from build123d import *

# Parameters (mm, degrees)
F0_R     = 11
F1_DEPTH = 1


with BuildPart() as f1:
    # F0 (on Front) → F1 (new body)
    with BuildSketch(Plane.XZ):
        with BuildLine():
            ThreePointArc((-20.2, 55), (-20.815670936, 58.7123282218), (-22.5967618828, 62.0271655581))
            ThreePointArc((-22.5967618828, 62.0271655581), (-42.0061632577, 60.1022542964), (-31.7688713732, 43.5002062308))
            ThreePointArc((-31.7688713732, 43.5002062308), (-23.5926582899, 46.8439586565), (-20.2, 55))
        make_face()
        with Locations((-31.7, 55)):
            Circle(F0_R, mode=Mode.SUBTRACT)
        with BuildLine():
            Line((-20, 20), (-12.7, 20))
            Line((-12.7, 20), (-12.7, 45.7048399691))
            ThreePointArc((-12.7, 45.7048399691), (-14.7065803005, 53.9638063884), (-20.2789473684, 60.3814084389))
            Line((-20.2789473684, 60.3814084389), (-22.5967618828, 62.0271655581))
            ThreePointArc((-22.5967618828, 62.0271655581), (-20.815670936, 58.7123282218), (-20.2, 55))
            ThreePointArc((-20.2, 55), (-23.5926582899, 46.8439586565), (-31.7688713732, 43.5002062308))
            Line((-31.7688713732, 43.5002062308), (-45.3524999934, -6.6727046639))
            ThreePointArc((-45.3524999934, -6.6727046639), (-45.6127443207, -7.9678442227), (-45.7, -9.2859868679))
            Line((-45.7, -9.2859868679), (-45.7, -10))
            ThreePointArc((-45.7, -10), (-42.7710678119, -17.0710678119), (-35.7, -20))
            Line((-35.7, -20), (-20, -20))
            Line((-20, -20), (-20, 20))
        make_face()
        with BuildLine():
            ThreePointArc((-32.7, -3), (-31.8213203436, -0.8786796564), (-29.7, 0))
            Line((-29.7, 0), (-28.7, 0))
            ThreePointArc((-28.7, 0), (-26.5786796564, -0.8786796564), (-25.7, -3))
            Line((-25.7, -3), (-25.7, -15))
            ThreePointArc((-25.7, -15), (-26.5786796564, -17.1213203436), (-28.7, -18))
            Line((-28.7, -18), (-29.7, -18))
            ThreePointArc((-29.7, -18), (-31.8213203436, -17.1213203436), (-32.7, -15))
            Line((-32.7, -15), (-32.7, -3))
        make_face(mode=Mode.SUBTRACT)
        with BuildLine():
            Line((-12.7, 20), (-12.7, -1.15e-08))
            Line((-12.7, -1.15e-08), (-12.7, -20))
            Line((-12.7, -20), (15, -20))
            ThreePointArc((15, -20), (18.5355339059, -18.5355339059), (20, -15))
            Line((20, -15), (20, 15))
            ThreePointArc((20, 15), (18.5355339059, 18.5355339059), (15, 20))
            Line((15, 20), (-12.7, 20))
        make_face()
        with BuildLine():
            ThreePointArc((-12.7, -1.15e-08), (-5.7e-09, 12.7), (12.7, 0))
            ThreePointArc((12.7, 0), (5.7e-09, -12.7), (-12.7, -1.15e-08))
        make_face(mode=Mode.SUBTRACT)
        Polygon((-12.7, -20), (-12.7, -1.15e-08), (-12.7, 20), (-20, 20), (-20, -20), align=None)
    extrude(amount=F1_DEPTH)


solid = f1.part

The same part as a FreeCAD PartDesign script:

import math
import FreeCAD as App
import Part
import Sketcher

doc = App.newDocument("Part")
params = doc.addObject("Spreadsheet::Sheet", "Params")
for row, (alias, value) in enumerate([
    ("sketch1_diameter", "22 mm"),
    ("sketch1_radius", "10 mm"),
    ("sketch1_radius2", "5 mm"),
    ("sketch1_radius3", "18 mm"),
    ("sketch1_radius4", "3 mm"),
    ("pad1_length", "1 mm"),
], start=1):
    params.set(f"A{row}", alias)
    params.set(f"B{row}", "=" + value)
    params.setAlias(f"B{row}", alias)

body = doc.addObject("PartDesign::Body", "Body")

# Sketch on XZ plane
sketch1 = body.newObject("Sketcher::SketchObject", "Sketch")
sketch1.AttachmentSupport = (doc.getObject("XZ_Plane"), [""])
sketch1.MapMode = "FlatFace"
sketch1.addGeometry(Part.ArcOfCircle(Part.Circle(App.Vector(-31.7, 55, 0), App.Vector(0, 0, 1), 11.5), math.radians(38), math.radians(270)), False)
sketch1.addGeometry(Part.LineSegment(App.Vector(-31.8, 43.5, 0), App.Vector(-45.4, -6.7, 0)), False)
sketch1.addGeometry(Part.ArcOfCircle(Part.Circle(App.Vector(-35.7, -9.3, 0), App.Vector(0, 0, 1), 10), math.radians(164.85), math.radians(180)), False)
sketch1.addGeometry(Part.LineSegment(App.Vector(-45.7, -9.3, 0), App.Vector(-45.7, -10, 0)), False)
sketch1.addGeometry(Part.ArcOfCircle(Part.Circle(App.Vector(-35.7, -10, 0), App.Vector(0, 0, 1), 10), math.radians(180), math.radians(270)), False)
sketch1.addGeometry(Part.LineSegment(App.Vector(-35.7, -20, 0), App.Vector(15, -20, 0)), False)
sketch1.addGeometry(Part.ArcOfCircle(Part.Circle(App.Vector(15, -15, 0), App.Vector(0, 0, 1), 5), math.radians(-90), math.radians(0)), False)
sketch1.addGeometry(Part.LineSegment(App.Vector(20, -15, 0), App.Vector(20, 15, 0)), False)
sketch1.addGeometry(Part.ArcOfCircle(Part.Circle(App.Vector(15, 15, 0), App.Vector(0, 0, 1), 5), math.radians(0), math.radians(90)), False)
sketch1.addGeometry(Part.LineSegment(App.Vector(15, 20, 0), App.Vector(-12.7, 20, 0)), False)
sketch1.addGeometry(Part.LineSegment(App.Vector(-12.7, 20, 0), App.Vector(-12.7, 45.7, 0)), False)
sketch1.addGeometry(Part.ArcOfCircle(Part.Circle(App.Vector(-30.7, 45.7, 0), App.Vector(0, 0, 1), 18), math.radians(0), math.radians(55)), False)
sketch1.addGeometry(Part.LineSegment(App.Vector(-20.3, 60.4, 0), App.Vector(-22.6, 62, 0)), False)
sketch1.addGeometry(Part.LineSegment(App.Vector(-32.7, -15, 0), App.Vector(-32.7, -3, 0)), False)
sketch1.addGeometry(Part.ArcOfCircle(Part.Circle(App.Vector(-29.7, -3, 0), App.Vector(0, 0, 1), 3), math.radians(90), math.radians(180)), False)
sketch1.addGeometry(Part.LineSegment(App.Vector(-29.7, 0, 0), App.Vector(-28.7, 0, 0)), False)
sketch1.addGeometry(Part.ArcOfCircle(Part.Circle(App.Vector(-28.7, -3, 0), App.Vector(0, 0, 1), 3), math.radians(0), math.radians(90)), False)
sketch1.addGeometry(Part.LineSegment(App.Vector(-25.7, -3, 0), App.Vector(-25.7, -15, 0)), False)
sketch1.addGeometry(Part.ArcOfCircle(Part.Circle(App.Vector(-28.7, -15, 0), App.Vector(0, 0, 1), 3), math.radians(-90), math.radians(0)), False)
sketch1.addGeometry(Part.LineSegment(App.Vector(-28.7, -18, 0), App.Vector(-29.7, -18, 0)), False)
sketch1.addGeometry(Part.ArcOfCircle(Part.Circle(App.Vector(-29.7, -15, 0), App.Vector(0, 0, 1), 3), math.radians(180), math.radians(270)), False)
sketch1.addGeometry(Part.Circle(App.Vector(-31.7, 55, 0), App.Vector(0, 0, 1), 11), False)
sketch1.addGeometry(Part.Circle(App.Vector(0, 0, 0), App.Vector(0, 0, 1), 12.7), False)
sketch1.addConstraint(Sketcher.Constraint("Coincident", 0, 2, 1, 1))
sketch1.addConstraint(Sketcher.Constraint("Tangent", 1, 2, 2, 1))
sketch1.addConstraint(Sketcher.Constraint("Tangent", 2, 2, 3, 1))
sketch1.addConstraint(Sketcher.Constraint("Tangent", 3, 2, 4, 1))
sketch1.addConstraint(Sketcher.Constraint("Tangent", 4, 2, 5, 1))
sketch1.addConstraint(Sketcher.Constraint("Tangent", 5, 2, 6, 1))
sketch1.addConstraint(Sketcher.Constraint("Tangent", 6, 2, 7, 1))
sketch1.addConstraint(Sketcher.Constraint("Tangent", 7, 2, 8, 1))
sketch1.addConstraint(Sketcher.Constraint("Tangent", 8, 2, 9, 1))
sketch1.addConstraint(Sketcher.Constraint("Coincident", 9, 2, 10, 1))
sketch1.addConstraint(Sketcher.Constraint("Tangent", 10, 2, 11, 1))
sketch1.addConstraint(Sketcher.Constraint("Tangent", 11, 2, 12, 1))
sketch1.addConstraint(Sketcher.Constraint("Coincident", 12, 2, 0, 1))
sketch1.addConstraint(Sketcher.Constraint("Tangent", 13, 2, 14, 2))
sketch1.addConstraint(Sketcher.Constraint("Tangent", 14, 1, 15, 1))
sketch1.addConstraint(Sketcher.Constraint("Tangent", 15, 2, 16, 2))
sketch1.addConstraint(Sketcher.Constraint("Tangent", 16, 1, 17, 1))
sketch1.addConstraint(Sketcher.Constraint("Tangent", 17, 2, 18, 2))
sketch1.addConstraint(Sketcher.Constraint("Tangent", 18, 1, 19, 1))
sketch1.addConstraint(Sketcher.Constraint("Tangent", 19, 2, 20, 2))
sketch1.addConstraint(Sketcher.Constraint("Tangent", 20, 1, 13, 1))
sketch1.addConstraint(Sketcher.Constraint("Vertical", 3))
sketch1.addConstraint(Sketcher.Constraint("Horizontal", 5))
sketch1.addConstraint(Sketcher.Constraint("Vertical", 7))
sketch1.addConstraint(Sketcher.Constraint("Horizontal", 9))
sketch1.addConstraint(Sketcher.Constraint("Vertical", 10))
sketch1.addConstraint(Sketcher.Constraint("Vertical", 13))
sketch1.addConstraint(Sketcher.Constraint("Horizontal", 15))
sketch1.addConstraint(Sketcher.Constraint("Vertical", 17))
sketch1.addConstraint(Sketcher.Constraint("Horizontal", 19))
sketch1.addConstraint(Sketcher.Constraint("Coincident", 22, 3, -1, 1))
sketch1.addConstraint(Sketcher.Constraint("Coincident", 21, 3, 0, 3))
sketch1.addConstraint(Sketcher.Constraint("Equal", 2, 4))
sketch1.addConstraint(Sketcher.Constraint("Equal", 6, 8))
sketch1.addConstraint(Sketcher.Constraint("Equal", 14, 16))
sketch1.addConstraint(Sketcher.Constraint("Equal", 16, 18))
sketch1.addConstraint(Sketcher.Constraint("Equal", 18, 20))
sketch1.addConstraint(Sketcher.Constraint("PointOnObject", 14, 1, -1))
sketch1.addConstraint(Sketcher.Constraint("Horizontal", 6, 3, 18, 3))
sketch1.addConstraint(Sketcher.Constraint("Diameter", 21, 22.0))
sketch1.addConstraint(Sketcher.Constraint("Radius", 2, 10.0))
sketch1.addConstraint(Sketcher.Constraint("Radius", 6, 5.0))
sketch1.addConstraint(Sketcher.Constraint("Radius", 11, 18.0))
sketch1.addConstraint(Sketcher.Constraint("Radius", 14, 3.0))
sketch1.addConstraint(Sketcher.Constraint("Diameter", 22, 25.4))
sketch1.addConstraint(Sketcher.Constraint("Radius", 0, 11.5))
sketch1.addConstraint(Sketcher.Constraint("DistanceX", 15, 1, 15, 2, 1.0))
sketch1.addConstraint(Sketcher.Constraint("DistanceY", 7, 1, 7, 2, 30.0))
sketch1.addConstraint(Sketcher.Constraint("DistanceY", 13, 1, 13, 2, 12.0))
sketch1.addConstraint(Sketcher.Constraint("DistanceX", 5, 1, 5, 2, 50.7))
sketch1.addConstraint(Sketcher.Constraint("DistanceX", 9, 2, 9, 1, 27.7))
sketch1.addConstraint(Sketcher.Constraint("DistanceY", -1, 1, 0, 3, 55.0))
sketch1.addConstraint(Sketcher.Constraint("DistanceX", -1, 1, 6, 3, 15.0))
sketch1.addConstraint(Sketcher.Constraint("DistanceX", 2, 3, 0, 3, 4.0))
sketch1.addConstraint(Sketcher.Constraint("DistanceX", 2, 3, 14, 3, 6.0))
sketch1.addConstraint(Sketcher.Constraint("DistanceY", 10, 1, 10, 2, 25.70484))
sketch1.addConstraint(Sketcher.Constraint("DistanceX", 1, 2, -1, 1, 45.3525))
sketch1.addConstraint(Sketcher.Constraint("Distance", 12, 2.842671))
sketch1.addConstraint(Sketcher.Constraint("DistanceY", 3, 2, 3, 1, 0.714013))
sketch1.setExpression("Constraints[39]", "Params.sketch1_diameter")
sketch1.setExpression("Constraints[40]", "Params.sketch1_radius")
sketch1.setExpression("Constraints[41]", "Params.sketch1_radius2")
sketch1.setExpression("Constraints[42]", "Params.sketch1_radius3")
sketch1.setExpression("Constraints[43]", "Params.sketch1_radius4")
pad1 = body.newObject("PartDesign::Pad", "Pad")
pad1.Profile = sketch1
pad1.setExpression("Length", "Params.pad1_length")

doc.recompute()
